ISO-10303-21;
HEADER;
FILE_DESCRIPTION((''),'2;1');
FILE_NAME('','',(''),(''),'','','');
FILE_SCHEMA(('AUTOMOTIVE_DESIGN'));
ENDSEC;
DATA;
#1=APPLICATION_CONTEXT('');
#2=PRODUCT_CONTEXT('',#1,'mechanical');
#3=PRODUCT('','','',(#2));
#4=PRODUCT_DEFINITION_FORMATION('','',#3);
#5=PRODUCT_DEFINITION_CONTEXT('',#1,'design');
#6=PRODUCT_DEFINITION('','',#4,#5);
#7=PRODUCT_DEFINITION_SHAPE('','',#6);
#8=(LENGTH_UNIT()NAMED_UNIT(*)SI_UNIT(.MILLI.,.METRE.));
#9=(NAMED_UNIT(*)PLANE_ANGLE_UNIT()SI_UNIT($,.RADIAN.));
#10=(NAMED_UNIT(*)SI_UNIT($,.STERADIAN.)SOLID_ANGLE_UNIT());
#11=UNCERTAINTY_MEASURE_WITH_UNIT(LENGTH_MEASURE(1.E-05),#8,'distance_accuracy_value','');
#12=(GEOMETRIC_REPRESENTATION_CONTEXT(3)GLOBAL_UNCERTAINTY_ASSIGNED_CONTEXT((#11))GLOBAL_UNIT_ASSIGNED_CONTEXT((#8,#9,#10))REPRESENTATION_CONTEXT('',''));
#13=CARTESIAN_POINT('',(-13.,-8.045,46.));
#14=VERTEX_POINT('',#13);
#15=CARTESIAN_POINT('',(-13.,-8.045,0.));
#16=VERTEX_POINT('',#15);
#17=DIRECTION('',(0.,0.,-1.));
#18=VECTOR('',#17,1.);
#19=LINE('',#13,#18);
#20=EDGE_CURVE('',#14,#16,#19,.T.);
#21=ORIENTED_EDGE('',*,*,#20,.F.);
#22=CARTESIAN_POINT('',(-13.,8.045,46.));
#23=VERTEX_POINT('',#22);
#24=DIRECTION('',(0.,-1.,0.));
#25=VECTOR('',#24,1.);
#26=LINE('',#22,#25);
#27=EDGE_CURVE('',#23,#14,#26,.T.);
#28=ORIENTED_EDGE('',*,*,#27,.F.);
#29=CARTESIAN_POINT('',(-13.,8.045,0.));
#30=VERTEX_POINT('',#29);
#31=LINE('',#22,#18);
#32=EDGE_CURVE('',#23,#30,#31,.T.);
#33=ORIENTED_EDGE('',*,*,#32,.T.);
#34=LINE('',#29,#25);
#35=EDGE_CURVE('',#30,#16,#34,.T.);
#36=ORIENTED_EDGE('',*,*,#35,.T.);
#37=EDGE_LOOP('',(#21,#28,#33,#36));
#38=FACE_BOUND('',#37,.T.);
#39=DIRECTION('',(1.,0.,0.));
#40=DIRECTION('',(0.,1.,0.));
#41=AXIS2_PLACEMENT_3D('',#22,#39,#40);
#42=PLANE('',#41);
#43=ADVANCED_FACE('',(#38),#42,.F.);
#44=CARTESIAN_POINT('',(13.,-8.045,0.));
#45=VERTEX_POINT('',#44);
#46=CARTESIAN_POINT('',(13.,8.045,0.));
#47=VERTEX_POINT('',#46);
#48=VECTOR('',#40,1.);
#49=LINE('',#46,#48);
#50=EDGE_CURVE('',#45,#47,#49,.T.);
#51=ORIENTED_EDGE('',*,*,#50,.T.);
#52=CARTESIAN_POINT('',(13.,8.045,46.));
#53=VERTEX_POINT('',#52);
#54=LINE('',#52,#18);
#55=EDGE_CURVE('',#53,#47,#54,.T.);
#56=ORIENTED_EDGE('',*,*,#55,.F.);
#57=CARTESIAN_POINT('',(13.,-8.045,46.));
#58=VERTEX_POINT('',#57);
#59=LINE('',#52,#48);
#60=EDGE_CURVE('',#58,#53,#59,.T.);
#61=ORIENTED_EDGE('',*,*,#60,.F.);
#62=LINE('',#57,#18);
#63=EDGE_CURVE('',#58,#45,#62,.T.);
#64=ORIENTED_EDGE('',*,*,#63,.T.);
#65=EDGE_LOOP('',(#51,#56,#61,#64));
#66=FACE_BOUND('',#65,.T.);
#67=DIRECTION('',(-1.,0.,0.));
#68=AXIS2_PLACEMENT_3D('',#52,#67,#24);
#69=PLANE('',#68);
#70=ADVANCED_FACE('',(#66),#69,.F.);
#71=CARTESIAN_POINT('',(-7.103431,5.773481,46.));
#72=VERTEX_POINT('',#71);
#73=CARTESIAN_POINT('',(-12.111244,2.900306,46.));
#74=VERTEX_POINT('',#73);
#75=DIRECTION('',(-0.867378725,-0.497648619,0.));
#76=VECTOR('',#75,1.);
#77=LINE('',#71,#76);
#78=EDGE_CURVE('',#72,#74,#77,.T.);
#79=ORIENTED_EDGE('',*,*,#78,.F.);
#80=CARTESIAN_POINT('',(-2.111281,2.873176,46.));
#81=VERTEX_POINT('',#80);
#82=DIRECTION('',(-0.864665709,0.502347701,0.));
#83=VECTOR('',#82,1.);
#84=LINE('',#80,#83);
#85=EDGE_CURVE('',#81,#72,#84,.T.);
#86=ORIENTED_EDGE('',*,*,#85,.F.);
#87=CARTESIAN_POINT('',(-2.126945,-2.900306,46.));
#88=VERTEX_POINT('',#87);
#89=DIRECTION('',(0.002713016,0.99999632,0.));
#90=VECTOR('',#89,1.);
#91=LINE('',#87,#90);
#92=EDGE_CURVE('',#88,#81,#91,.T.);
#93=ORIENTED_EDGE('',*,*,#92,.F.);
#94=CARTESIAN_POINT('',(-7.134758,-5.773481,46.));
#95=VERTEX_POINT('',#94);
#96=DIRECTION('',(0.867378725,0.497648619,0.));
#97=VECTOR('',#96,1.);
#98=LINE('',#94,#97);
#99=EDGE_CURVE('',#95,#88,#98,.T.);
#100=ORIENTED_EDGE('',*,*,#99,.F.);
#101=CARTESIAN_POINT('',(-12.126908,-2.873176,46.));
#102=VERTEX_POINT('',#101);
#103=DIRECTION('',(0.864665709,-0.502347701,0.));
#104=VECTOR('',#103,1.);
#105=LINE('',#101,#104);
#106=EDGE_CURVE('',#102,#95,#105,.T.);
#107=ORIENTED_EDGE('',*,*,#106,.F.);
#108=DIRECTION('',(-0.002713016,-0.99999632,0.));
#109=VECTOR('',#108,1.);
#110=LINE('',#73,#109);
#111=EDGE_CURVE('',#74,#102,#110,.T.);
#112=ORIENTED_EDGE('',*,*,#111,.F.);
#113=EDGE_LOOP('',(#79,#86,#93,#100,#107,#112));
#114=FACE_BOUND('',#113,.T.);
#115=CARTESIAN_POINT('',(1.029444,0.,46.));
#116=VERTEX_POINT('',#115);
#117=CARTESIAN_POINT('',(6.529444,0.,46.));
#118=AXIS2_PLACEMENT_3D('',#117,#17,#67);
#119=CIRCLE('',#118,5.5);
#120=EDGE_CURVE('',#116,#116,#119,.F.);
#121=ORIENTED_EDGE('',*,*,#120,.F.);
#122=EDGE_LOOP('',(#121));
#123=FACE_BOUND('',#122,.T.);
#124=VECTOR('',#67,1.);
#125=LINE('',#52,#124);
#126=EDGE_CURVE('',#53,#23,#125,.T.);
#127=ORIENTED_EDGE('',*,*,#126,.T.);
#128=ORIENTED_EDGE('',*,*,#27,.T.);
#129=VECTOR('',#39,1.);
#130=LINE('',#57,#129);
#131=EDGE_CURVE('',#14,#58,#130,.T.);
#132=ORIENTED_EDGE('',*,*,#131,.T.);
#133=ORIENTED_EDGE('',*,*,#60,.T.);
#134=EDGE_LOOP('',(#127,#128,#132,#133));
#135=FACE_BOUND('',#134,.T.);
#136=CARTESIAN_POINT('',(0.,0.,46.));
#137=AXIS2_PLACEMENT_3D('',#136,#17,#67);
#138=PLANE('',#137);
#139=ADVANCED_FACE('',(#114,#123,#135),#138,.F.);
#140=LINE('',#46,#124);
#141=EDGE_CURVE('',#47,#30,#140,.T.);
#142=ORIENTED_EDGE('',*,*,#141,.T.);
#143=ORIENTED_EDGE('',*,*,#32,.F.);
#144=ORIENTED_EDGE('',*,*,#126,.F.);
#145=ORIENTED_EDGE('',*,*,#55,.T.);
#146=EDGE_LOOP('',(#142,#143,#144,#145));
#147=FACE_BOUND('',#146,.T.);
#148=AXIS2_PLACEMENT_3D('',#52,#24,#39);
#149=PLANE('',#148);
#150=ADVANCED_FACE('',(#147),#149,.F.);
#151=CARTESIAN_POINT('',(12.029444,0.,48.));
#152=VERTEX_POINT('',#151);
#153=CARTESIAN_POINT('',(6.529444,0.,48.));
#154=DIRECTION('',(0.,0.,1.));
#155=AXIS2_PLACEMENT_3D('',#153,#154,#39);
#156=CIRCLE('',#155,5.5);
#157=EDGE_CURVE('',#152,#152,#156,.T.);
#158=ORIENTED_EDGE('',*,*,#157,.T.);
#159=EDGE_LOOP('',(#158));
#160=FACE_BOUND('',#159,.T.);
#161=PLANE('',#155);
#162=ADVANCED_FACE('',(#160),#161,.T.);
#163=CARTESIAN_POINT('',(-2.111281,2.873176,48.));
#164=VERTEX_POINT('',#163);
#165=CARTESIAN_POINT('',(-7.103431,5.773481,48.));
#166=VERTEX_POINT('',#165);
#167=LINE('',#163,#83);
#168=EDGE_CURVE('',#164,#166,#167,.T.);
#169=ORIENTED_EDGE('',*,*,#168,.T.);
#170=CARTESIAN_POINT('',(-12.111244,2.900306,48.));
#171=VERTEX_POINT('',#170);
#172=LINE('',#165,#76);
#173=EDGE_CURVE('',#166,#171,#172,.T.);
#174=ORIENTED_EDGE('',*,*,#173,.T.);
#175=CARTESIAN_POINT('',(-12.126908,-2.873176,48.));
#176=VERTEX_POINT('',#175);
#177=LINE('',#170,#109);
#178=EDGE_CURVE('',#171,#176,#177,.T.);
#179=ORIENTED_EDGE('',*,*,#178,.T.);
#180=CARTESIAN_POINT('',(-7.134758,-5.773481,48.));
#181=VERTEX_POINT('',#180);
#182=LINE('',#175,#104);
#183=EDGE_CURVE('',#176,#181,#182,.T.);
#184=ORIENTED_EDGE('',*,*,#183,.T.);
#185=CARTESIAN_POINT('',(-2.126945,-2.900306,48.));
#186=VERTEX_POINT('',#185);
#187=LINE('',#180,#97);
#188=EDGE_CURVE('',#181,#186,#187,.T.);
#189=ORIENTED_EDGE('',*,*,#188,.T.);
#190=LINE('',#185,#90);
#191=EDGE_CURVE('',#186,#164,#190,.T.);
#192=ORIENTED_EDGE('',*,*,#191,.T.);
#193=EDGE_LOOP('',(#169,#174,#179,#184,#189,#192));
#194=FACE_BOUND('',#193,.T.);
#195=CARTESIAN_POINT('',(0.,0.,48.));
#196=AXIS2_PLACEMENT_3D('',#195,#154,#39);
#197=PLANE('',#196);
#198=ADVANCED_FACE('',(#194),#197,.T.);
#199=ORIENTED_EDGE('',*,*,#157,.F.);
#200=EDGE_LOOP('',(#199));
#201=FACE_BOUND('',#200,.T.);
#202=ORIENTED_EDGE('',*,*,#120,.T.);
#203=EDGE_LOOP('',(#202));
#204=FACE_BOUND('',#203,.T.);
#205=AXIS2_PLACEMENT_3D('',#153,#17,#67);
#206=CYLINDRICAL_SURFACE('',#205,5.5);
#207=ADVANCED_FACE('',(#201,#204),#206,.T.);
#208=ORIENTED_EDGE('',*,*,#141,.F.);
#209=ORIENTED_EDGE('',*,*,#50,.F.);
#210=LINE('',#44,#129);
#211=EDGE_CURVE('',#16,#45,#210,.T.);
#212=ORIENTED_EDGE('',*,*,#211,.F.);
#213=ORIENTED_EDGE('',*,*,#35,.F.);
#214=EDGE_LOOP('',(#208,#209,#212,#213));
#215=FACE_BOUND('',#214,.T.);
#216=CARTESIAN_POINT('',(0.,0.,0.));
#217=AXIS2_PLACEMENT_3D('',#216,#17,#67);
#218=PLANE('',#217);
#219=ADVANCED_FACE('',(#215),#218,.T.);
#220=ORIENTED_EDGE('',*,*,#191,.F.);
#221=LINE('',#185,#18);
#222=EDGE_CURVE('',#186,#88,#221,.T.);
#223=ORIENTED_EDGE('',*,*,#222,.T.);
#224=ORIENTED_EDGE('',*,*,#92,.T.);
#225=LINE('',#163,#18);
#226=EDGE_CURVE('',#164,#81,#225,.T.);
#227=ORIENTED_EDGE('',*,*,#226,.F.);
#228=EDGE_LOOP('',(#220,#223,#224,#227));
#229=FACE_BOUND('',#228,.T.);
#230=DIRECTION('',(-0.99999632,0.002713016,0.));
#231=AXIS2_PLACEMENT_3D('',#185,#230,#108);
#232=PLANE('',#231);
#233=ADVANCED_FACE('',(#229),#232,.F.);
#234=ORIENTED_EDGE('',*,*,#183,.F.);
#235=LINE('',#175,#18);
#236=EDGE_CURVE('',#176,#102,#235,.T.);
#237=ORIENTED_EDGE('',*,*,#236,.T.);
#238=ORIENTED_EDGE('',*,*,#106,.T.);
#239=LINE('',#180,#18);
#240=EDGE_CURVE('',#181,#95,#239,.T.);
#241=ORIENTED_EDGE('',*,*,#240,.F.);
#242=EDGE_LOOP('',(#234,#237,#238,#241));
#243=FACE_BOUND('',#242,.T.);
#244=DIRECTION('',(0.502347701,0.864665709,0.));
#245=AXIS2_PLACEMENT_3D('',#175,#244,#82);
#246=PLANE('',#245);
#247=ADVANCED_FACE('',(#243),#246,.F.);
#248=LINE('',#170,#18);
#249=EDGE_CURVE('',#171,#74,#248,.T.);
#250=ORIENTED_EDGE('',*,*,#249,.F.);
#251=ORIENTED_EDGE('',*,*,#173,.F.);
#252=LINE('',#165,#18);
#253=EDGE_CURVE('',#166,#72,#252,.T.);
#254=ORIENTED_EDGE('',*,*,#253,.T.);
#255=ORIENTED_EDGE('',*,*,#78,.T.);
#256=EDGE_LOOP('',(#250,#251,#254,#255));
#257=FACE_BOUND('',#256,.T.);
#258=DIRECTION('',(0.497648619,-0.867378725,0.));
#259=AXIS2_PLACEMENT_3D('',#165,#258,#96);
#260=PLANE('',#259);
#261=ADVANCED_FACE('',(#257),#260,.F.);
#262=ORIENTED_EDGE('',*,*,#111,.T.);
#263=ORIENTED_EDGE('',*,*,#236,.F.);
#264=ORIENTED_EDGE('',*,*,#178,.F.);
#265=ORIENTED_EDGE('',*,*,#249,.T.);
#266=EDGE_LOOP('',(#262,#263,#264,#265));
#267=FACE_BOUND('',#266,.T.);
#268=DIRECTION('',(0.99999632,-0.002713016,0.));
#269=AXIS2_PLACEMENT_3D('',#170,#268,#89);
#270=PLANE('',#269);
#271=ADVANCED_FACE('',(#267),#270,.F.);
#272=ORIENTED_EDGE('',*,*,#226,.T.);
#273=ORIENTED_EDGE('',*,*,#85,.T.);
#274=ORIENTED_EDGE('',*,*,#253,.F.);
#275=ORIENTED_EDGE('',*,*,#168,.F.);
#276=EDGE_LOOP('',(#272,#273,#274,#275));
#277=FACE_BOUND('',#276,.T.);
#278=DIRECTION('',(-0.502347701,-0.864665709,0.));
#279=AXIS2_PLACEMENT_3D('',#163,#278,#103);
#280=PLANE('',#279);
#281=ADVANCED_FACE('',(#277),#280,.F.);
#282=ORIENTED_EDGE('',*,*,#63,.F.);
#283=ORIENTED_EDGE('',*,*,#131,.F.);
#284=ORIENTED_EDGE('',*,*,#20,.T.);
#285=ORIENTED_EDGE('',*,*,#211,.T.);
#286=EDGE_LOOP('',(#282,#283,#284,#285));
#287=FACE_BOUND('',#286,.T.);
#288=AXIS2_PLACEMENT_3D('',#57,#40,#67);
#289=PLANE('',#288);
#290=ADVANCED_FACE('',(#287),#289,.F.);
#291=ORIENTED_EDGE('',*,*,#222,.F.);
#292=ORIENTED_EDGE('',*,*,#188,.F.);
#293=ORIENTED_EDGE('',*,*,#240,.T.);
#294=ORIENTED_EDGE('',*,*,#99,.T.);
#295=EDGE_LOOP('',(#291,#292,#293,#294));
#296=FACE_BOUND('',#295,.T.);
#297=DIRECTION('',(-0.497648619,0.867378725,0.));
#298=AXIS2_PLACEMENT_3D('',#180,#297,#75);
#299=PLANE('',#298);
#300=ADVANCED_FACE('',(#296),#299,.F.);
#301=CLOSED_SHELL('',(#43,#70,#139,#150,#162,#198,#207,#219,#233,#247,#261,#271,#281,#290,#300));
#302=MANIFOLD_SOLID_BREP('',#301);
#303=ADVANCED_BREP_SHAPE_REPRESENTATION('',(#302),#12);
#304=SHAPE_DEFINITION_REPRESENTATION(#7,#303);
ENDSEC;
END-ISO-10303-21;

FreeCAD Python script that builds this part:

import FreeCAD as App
import Part
import Sketcher
Q = App.Units.Quantity

doc = App.newDocument("Part")
body = doc.addObject("PartDesign::Body", "Body")

# Sketch on XY plane
sketch1 = body.newObject("Sketcher::SketchObject", "Sketch")
sketch1.AttachmentSupport = (doc.getObject("XY_Plane"), [""])
sketch1.MapMode = "FlatFace"
sketch1.addGeometry(Part.LineSegment(App.Vector(-13, 8, 0), App.Vector(-13, -8, 0)), False)
sketch1.addGeometry(Part.LineSegment(App.Vector(-13, -8, 0), App.Vector(13, -8, 0)), False)
sketch1.addGeometry(Part.LineSegment(App.Vector(13, -8, 0), App.Vector(13, 8, 0)), False)
sketch1.addGeometry(Part.LineSegment(App.Vector(13, 8, 0), App.Vector(-13, 8, 0)), False)
sketch1.addConstraint(Sketcher.Constraint("Coincident", 0, 2, 1, 1))
sketch1.addConstraint(Sketcher.Constraint("Coincident", 1, 2, 2, 1))
sketch1.addConstraint(Sketcher.Constraint("Coincident", 2, 2, 3, 1))
sketch1.addConstraint(Sketcher.Constraint("Coincident", 3, 2, 0, 1))
sketch1.addConstraint(Sketcher.Constraint("Vertical", 0))
sketch1.addConstraint(Sketcher.Constraint("Horizontal", 1))
sketch1.addConstraint(Sketcher.Constraint("Vertical", 2))
sketch1.addConstraint(Sketcher.Constraint("Horizontal", 3))
sketch1.addConstraint(Sketcher.Constraint("Symmetric", 0, 2, 2, 2, -1, 1))
sketch1.addConstraint(Sketcher.Constraint("DistanceX", 1, 1, 1, 2, Q("26 mm")))
sketch1.addConstraint(Sketcher.Constraint("DistanceY", 0, 2, 0, 1, Q("16.09 mm")))
pad1 = body.newObject("PartDesign::Pad", "Pad")
pad1.Profile = sketch1
pad1.Length = 46

# Sketch on XY plane
sketch2 = body.newObject("Sketcher::SketchObject", "Sketch001")
sketch2.AttachmentSupport = (doc.getObject("XY_Plane"), [""])
sketch2.MapMode = "FlatFace"
sketch2.AttachmentOffset = App.Placement(App.Vector(0, 0, 46), App.Rotation())
sketch2.addGeometry(Part.Circle(App.Vector(7, 0, 0), App.Vector(0, 0, 1), 6), False)
sketch2.addGeometry(Part.LineSegment(App.Vector(-7, -6, 0), App.Vector(-2, -3, 0)), False)
sketch2.addGeometry(Part.LineSegment(App.Vector(-2, -3, 0), App.Vector(-2, 3, 0)), False)
sketch2.addGeometry(Part.LineSegment(App.Vector(-2, 3, 0), App.Vector(-7, 6, 0)), False)
sketch2.addGeometry(Part.LineSegment(App.Vector(-7, 6, 0), App.Vector(-12, 3, 0)), False)
sketch2.addGeometry(Part.LineSegment(App.Vector(-12, 3, 0), App.Vector(-12, -3, 0)), False)
sketch2.addGeometry(Part.LineSegment(App.Vector(-12, -3, 0), App.Vector(-7, -6, 0)), False)
sketch2.addConstraint(Sketcher.Constraint("Coincident", 1, 2, 2, 1))
sketch2.addConstraint(Sketcher.Constraint("Coincident", 2, 2, 3, 1))
sketch2.addConstraint(Sketcher.Constraint("Coincident", 3, 2, 4, 1))
sketch2.addConstraint(Sketcher.Constraint("Coincident", 4, 2, 5, 1))
sketch2.addConstraint(Sketcher.Constraint("Coincident", 5, 2, 6, 1))
sketch2.addConstraint(Sketcher.Constraint("Coincident", 6, 2, 1, 1))
sketch2.addConstraint(Sketcher.Constraint("PointOnObject", 0, 3, -1))
sketch2.addConstraint(Sketcher.Constraint("Parallel", 1, 4))
sketch2.addConstraint(Sketcher.Constraint("Parallel", 2, 5))
sketch2.addConstraint(Sketcher.Constraint("Parallel", 3, 6))
sketch2.addConstraint(Sketcher.Constraint("Equal", 1, 2))
sketch2.addConstraint(Sketcher.Constraint("Equal", 2, 3))
sketch2.addConstraint(Sketcher.Constraint("Equal", 3, 4))
sketch2.addConstraint(Sketcher.Constraint("Diameter", 0, Q("11 mm")))
sketch2.addConstraint(Sketcher.Constraint("DistanceX", 4, 2, 1, 2, Q("9.9843 mm")))
sketch2.addConstraint(Sketcher.Constraint("DistanceX", 2, 2, -1, 1, Q("2.111281 mm")))
sketch2.addConstraint(Sketcher.Constraint("DistanceX", 3, 2, -1, 1, Q("7.103431 mm")))
sketch2.addConstraint(Sketcher.Constraint("DistanceY", -1, 1, 3, 2, Q("5.773481 mm")))
sketch2.addConstraint(Sketcher.Constraint("DistanceX", 6, 2, -1, 1, Q("7.134758 mm")))
sketch2.addConstraint(Sketcher.Constraint("DistanceY", 6, 2, -1, 1, Q("5.773481 mm")))
sketch2.addConstraint(Sketcher.Constraint("DistanceX", 1, 2, 0, 3, Q("8.656389 mm")))
pad2 = body.newObject("PartDesign::Pad", "Pad001")
pad2.Profile = sketch2
pad2.Length = 2

doc.recompute()
